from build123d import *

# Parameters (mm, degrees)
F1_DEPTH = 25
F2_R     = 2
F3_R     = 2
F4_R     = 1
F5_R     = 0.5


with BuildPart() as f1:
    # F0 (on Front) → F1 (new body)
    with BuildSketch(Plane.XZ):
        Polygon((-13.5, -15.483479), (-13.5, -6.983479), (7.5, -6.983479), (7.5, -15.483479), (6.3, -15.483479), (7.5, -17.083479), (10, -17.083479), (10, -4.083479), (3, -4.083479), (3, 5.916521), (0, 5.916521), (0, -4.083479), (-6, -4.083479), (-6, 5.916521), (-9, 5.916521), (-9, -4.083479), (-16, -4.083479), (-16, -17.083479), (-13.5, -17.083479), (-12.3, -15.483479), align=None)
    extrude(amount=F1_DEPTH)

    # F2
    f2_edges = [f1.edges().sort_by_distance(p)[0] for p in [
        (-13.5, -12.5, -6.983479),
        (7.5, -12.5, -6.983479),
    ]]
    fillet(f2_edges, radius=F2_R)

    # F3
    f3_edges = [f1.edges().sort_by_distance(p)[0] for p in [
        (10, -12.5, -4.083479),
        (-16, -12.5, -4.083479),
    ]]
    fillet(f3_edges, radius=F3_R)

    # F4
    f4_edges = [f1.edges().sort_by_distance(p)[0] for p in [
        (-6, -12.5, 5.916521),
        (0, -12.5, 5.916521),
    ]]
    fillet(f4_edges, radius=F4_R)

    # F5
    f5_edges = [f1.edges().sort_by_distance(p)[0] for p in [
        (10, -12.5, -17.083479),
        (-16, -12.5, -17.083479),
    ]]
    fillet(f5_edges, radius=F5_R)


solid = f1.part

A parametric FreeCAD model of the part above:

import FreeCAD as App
import Part
import Sketcher

V = App.Vector
Q = App.Units.Quantity


def edges_at(feature, points):
    """Names of the edges that pass closest to the given points."""
    edges = feature.Shape.Edges
    near = lambda p: min(range(len(edges)), key=lambda i: edges[i].distToShape(Part.Vertex(*p))[0])
    return sorted({f"Edge{near(p) + 1}" for p in points})


def add_polygon(sketch, points):
    """Adds a closed chain of lines whose ends are joined by coincident constraints."""
    first, n = sketch.GeometryCount, len(points)
    for a, b in zip(points, points[1:] + points[:1]):
        sketch.addGeometry(Part.LineSegment(App.Vector(*a, 0), App.Vector(*b, 0)), False)
    for i in range(n):
        sketch.addConstraint(Sketcher.Constraint("Coincident", first + i, 2, first + (i + 1) % n, 1))

doc = App.newDocument("Part")
body = doc.addObject("PartDesign::Body", "Body")

# Sketch on XZ plane
sketch1 = doc.addObject("Sketcher::SketchObject", "Sketch")
body.addObject(sketch1)
sketch1.AttachmentSupport = (doc.XZ_Plane, [""])
sketch1.MapMode = "FlatFace"
add_polygon(sketch1, [(-13.5, -15.5), (-13.5, -7), (7.5, -7), (7.5, -15.5), (6.3, -15.5), (7.5, -17.1), (10, -17.1), (10, -4.1), (3, -4.1), (3, 5.9), (0, 5.9), (0, -4.1), (-6, -4.1), (-6, 5.9), (-9, 5.9), (-9, -4.1), (-16, -4.1), (-16, -17.1), (-13.5, -17.1), (-12.3, -15.5)])  # lines 0-19
sketch1.addConstraint([
    Sketcher.Constraint("Vertical", 0),
    Sketcher.Constraint("Horizontal", 1),
    Sketcher.Constraint("Vertical", 2),
    Sketcher.Constraint("Horizontal", 3),
    Sketcher.Constraint("Horizontal", 5),
    Sketcher.Constraint("Vertical", 6),
    Sketcher.Constraint("Horizontal", 7),
    Sketcher.Constraint("Vertical", 8),
    Sketcher.Constraint("Horizontal", 9),
    Sketcher.Constraint("Vertical", 10),
    Sketcher.Constraint("Horizontal", 11),
    Sketcher.Constraint("Vertical", 12),
    Sketcher.Constraint("Horizontal", 13),
    Sketcher.Constraint("Vertical", 14),
    Sketcher.Constraint("Horizontal", 15),
    Sketcher.Constraint("Vertical", 16),
    Sketcher.Constraint("Horizontal", 17),
    Sketcher.Constraint("Horizontal", 19),
    Sketcher.Constraint("PointOnObject", 9, 2, -2),
    Sketcher.Constraint("Horizontal", 7, 2, 10, 2),
    Sketcher.Constraint("Horizontal", 9, 2, 12, 2),
    Sketcher.Constraint("Horizontal", 11, 2, 14, 2),
    Sketcher.Constraint("Horizontal", 5, 2, 16, 2),
    Sketcher.Constraint("Horizontal", 3, 2, 18, 2),
    Sketcher.Constraint("Vertical", 2, 2, 4, 2),
    Sketcher.Constraint("Vertical", 0, 2, 17, 2),
    Sketcher.Constraint("Equal", 9, 13),
    Sketcher.Constraint("Equal", 7, 15),
    Sketcher.Constraint("Equal", 5, 17),
    Sketcher.Constraint("Equal", 3, 19),
    Sketcher.Constraint("DistanceX", 1, 1, 1, 2, Q("21 mm")),
    Sketcher.Constraint("DistanceX", 7, 2, 7, 1, Q("7 mm")),
    Sketcher.Constraint("DistanceX", 9, 2, 9, 1, Q("3 mm")),
    Sketcher.Constraint("DistanceX", 11, 2, 11, 1, Q("6 mm")),
    Sketcher.Constraint("DistanceY", 6, 1, 6, 2, Q("13 mm")),
    Sketcher.Constraint("DistanceY", 8, 1, 8, 2, Q("10 mm")),
    Sketcher.Constraint("Distance", 4, Q("2 mm")),
    Sketcher.Constraint("DistanceX", 3, 2, 3, 1, Q("1.2 mm")),
    Sketcher.Constraint("DistanceY", 0, 1, 0, 2, Q("8.5 mm")),
    Sketcher.Constraint("DistanceY", 0, 2, -1, 1, Q("6.983479 mm")),
])
pad1 = doc.addObject("PartDesign::Pad", "Pad")
body.addObject(pad1)
pad1.Profile = sketch1
pad1.Length = 25
doc.recompute()

fillet = doc.addObject("PartDesign::Fillet", "Fillet")
body.addObject(fillet)
fillet.Base = (pad1, edges_at(pad1, [(-13.5, -12.5, -6.983), (7.5, -12.5, -6.983)]))
fillet.Radius = 2
doc.recompute()

fillet2 = doc.addObject("PartDesign::Fillet", "Fillet001")
body.addObject(fillet2)
fillet2.Base = (fillet, edges_at(fillet, [(10, -12.5, -4.083), (-16, -12.5, -4.083)]))
fillet2.Radius = 2
doc.recompute()

fillet3 = doc.addObject("PartDesign::Fillet", "Fillet002")
body.addObject(fillet3)
fillet3.Base = (fillet2, edges_at(fillet2, [(-6, -12.5, 5.917), (0, -12.5, 5.917)]))
fillet3.Radius = 1
doc.recompute()

fillet4 = doc.addObject("PartDesign::Fillet", "Fillet003")
body.addObject(fillet4)
fillet4.Base = (fillet3, edges_at(fillet3, [(10, -12.5, -17.083), (-16, -12.5, -17.083)]))
fillet4.Radius = 0.5

doc.recompute()
